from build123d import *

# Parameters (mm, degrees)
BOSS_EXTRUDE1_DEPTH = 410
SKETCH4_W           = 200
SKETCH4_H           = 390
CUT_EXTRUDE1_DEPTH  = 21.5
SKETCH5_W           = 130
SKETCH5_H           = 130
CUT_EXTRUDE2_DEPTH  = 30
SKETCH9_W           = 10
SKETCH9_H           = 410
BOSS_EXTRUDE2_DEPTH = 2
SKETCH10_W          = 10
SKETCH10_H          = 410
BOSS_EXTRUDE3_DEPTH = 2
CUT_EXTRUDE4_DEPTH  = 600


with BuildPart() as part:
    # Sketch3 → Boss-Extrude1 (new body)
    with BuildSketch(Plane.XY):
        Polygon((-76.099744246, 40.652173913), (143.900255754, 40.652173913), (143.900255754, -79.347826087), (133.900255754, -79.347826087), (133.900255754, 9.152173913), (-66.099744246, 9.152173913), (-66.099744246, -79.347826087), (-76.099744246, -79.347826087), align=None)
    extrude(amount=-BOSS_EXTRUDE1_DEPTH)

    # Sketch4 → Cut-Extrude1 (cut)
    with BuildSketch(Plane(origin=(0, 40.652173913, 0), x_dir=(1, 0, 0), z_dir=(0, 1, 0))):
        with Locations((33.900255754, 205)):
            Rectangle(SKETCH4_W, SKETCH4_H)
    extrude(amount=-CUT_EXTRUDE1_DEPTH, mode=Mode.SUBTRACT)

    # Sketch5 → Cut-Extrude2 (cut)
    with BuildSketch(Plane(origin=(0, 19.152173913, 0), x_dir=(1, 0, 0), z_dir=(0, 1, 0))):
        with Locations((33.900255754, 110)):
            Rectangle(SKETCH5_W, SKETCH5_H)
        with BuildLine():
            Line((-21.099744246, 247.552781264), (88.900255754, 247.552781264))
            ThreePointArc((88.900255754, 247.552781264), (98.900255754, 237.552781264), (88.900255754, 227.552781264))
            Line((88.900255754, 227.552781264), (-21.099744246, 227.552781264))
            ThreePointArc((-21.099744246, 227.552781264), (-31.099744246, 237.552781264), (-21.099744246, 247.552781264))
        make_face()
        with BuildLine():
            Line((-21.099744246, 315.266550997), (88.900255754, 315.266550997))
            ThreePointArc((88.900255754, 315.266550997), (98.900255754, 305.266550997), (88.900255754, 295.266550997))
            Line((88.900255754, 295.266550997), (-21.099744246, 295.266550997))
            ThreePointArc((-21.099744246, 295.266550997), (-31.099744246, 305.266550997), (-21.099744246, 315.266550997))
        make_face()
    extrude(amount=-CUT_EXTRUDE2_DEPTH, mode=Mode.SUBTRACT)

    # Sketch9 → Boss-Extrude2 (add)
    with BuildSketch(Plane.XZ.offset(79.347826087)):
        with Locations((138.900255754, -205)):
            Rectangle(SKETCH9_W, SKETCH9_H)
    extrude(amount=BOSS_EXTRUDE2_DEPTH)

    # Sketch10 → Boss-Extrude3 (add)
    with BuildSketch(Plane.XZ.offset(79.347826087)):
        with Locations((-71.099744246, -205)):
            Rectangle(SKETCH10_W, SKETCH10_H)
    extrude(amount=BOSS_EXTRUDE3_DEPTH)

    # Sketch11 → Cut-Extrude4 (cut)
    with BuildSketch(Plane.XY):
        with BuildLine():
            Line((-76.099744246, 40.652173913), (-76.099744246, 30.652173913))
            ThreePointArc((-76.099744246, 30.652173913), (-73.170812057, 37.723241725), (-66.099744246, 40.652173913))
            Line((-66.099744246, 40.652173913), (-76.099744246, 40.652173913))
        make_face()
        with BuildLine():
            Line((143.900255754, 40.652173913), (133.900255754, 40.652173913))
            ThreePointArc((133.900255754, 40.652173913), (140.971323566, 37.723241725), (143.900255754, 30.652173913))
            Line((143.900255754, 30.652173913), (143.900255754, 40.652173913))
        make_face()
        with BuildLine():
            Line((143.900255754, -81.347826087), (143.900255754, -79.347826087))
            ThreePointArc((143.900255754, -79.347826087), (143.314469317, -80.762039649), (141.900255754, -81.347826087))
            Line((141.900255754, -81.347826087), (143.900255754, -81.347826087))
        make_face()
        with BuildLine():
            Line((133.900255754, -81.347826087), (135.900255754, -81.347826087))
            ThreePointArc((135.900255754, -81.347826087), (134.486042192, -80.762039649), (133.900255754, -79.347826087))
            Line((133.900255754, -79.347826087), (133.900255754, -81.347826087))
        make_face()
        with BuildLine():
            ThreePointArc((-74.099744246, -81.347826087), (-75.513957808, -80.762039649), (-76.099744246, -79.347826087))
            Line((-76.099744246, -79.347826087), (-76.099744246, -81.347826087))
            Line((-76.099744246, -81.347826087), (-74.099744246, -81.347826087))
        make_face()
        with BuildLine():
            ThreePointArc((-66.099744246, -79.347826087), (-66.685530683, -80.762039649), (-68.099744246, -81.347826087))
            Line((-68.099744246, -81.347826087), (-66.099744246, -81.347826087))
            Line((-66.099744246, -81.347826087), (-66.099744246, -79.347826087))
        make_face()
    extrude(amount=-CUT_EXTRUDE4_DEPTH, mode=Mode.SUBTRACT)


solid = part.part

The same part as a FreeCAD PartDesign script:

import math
import FreeCAD as App
import Part
import Sketcher
from FreeCAD import Vector
Q = App.Units.Quantity


def add_polygon(sketch, points):
    """Adds a closed chain of lines whose ends are joined by coincident constraints."""
    first, n = sketch.GeometryCount, len(points)
    for a, b in zip(points, points[1:] + points[:1]):
        sketch.addGeometry(Part.LineSegment(App.Vector(*a, 0), App.Vector(*b, 0)), False)
    for i in range(n):
        sketch.addConstraint(Sketcher.Constraint("Coincident", first + i, 2, first + (i + 1) % n, 1))

doc = App.newDocument("Part")
body = doc.addObject("PartDesign::Body", "Body")

sketch1 = body.newObject("Sketcher::SketchObject", "Sketch")
sketch1.AttachmentSupport = (doc.getObject("XY_Plane"), [""])
sketch1.MapMode = "FlatFace"
add_polygon(sketch1, [(143.900256, 40.652174), (-76.099744, 40.652174), (-76.099744, -79.347826), (-66.099744, -79.347826), (-66.099744, 9.152174), (133.900256, 9.152174), (133.900256, -79.347826), (143.900256, -79.347826)])
sketch1.addConstraint([
    Sketcher.Constraint("Horizontal", 0),
    Sketcher.Constraint("Vertical", 1),
    Sketcher.Constraint("Horizontal", 2),
    Sketcher.Constraint("Vertical", 3),
    Sketcher.Constraint("Horizontal", 4),
    Sketcher.Constraint("Vertical", 5),
    Sketcher.Constraint("Horizontal", 6),
    Sketcher.Constraint("Vertical", 7),
    Sketcher.Constraint("Horizontal", 2, 2, 5, 2),
    Sketcher.Constraint("Equal", 2, 6),
    Sketcher.Constraint("DistanceX", 0, 2, 0, 1, Q("220 mm")),
    Sketcher.Constraint("DistanceX", 2, 1, 2, 2, Q("10 mm")),
    Sketcher.Constraint("DistanceY", 1, 2, 1, 1, Q("120 mm")),
    Sketcher.Constraint("DistanceY", 3, 1, 3, 2, Q("88.5 mm")),
    Sketcher.Constraint("DistanceX", 0, 2, -1, 1, Q("76.099744 mm")),
    Sketcher.Constraint("DistanceY", -1, 1, 0, 2, Q("40.652174 mm")),
])
pad1 = body.newObject("PartDesign::Pad", "Pad")
pad1.Profile = sketch1
pad1.Length = 410
pad1.Reversed = True

sketch2 = body.newObject("Sketcher::SketchObject", "Sketch001")
sketch2.AttachmentSupport = (doc.getObject("XZ_Plane"), [""])
sketch2.MapMode = "FlatFace"
sketch2.AttachmentOffset = App.Placement(Vector(0, 0, -40.652174), App.Rotation())
add_polygon(sketch2, [(-66.099744, -400), (-66.099744, -10), (133.900256, -10), (133.900256, -400)])
sketch2.addConstraint([
    Sketcher.Constraint("Vertical", 0),
    Sketcher.Constraint("Horizontal", 1),
    Sketcher.Constraint("Vertical", 2),
    Sketcher.Constraint("Horizontal", 3),
    Sketcher.Constraint("DistanceX", 1, 1, 1, 2, Q("200 mm")),
    Sketcher.Constraint("DistanceY", 0, 1, 0, 2, Q("390 mm")),
    Sketcher.Constraint("DistanceY", 0, 2, -1, 1, Q("10 mm")),
    Sketcher.Constraint("DistanceX", 0, 2, -1, 1, Q("66.099744 mm")),
])
pocket1 = body.newObject("PartDesign::Pocket", "Pocket")
pocket1.Profile = sketch2
pocket1.Length = 21.5
pocket1.Reversed = True

sketch3 = body.newObject("Sketcher::SketchObject", "Sketch002")
sketch3.AttachmentSupport = (doc.getObject("XZ_Plane"), [""])
sketch3.MapMode = "FlatFace"
sketch3.AttachmentOffset = App.Placement(Vector(0, 0, -19.152174), App.Rotation())
add_polygon(sketch3, [(-31.099744, -175), (-31.099744, -45), (98.900256, -45), (98.900256, -175)])
sketch3.addGeometry(Part.LineSegment(Vector(88.900256, -247.552781, 0), Vector(-21.099744, -247.552781, 0)), False)
sketch3.addGeometry(Part.ArcOfCircle(Part.Circle(Vector(-21.099744, -237.552781, 0), Vector(0, 0, 1), 10), math.radians(90), math.radians(270)), False)
sketch3.addGeometry(Part.LineSegment(Vector(-21.099744, -227.552781, 0), Vector(88.900256, -227.552781, 0)), False)
sketch3.addGeometry(Part.ArcOfCircle(Part.Circle(Vector(88.900256, -237.552781, 0), Vector(0, 0, 1), 10), math.radians(-90), math.radians(90)), False)
sketch3.addGeometry(Part.LineSegment(Vector(88.900256, -315.266551, 0), Vector(-21.099744, -315.266551, 0)), False)
sketch3.addGeometry(Part.ArcOfCircle(Part.Circle(Vector(-21.099744, -305.266551, 0), Vector(0, 0, 1), 10), math.radians(90), math.radians(270)), False)
sketch3.addGeometry(Part.LineSegment(Vector(-21.099744, -295.266551, 0), Vector(88.900256, -295.266551, 0)), False)
sketch3.addGeometry(Part.ArcOfCircle(Part.Circle(Vector(88.900256, -305.266551, 0), Vector(0, 0, 1), 10), math.radians(-90), math.radians(90)), False)
sketch3.addConstraint([
    Sketcher.Constraint("Tangent", 4, 2, 5, 2),
    Sketcher.Constraint("Tangent", 5, 1, 6, 1),
    Sketcher.Constraint("Tangent", 6, 2, 7, 2),
    Sketcher.Constraint("Tangent", 7, 1, 4, 1),
    Sketcher.Constraint("Tangent", 8, 2, 9, 2),
    Sketcher.Constraint("Tangent", 9, 1, 10, 1),
    Sketcher.Constraint("Tangent", 10, 2, 11, 2),
    Sketcher.Constraint("Tangent", 11, 1, 8, 1),
    Sketcher.Constraint("Vertical", 0),
    Sketcher.Constraint("Horizontal", 1),
    Sketcher.Constraint("Vertical", 2),
    Sketcher.Constraint("Horizontal", 3),
    Sketcher.Constraint("Horizontal", 4),
    Sketcher.Constraint("Horizontal", 6),
    Sketcher.Constraint("Horizontal", 8),
    Sketcher.Constraint("Horizontal", 10),
    Sketcher.Constraint("Equal", 7, 9),
    Sketcher.Constraint("Vertical", 5, 3, 9, 3),
    Sketcher.Constraint("Vertical", 7, 3, 11, 3),
    Sketcher.Constraint("Equal", 3, 0),
    Sketcher.Constraint("Radius", 5, Q("10 mm")),
    Sketcher.Constraint("DistanceX", 1, 1, 1, 2, Q("130 mm")),
    Sketcher.Constraint("DistanceX", 4, 2, 4, 1, Q("110 mm")),
    Sketcher.Constraint("DistanceY", 0, 2, -1, 1, Q("45 mm")),
    Sketcher.Constraint("DistanceX", 0, 2, 5, 3, Q("10 mm")),
    Sketcher.Constraint("DistanceY", 5, 3, -1, 1, Q("237.552781 mm")),
    Sketcher.Constraint("DistanceY", 9, 3, -1, 1, Q("305.266551 mm")),
    Sketcher.Constraint("DistanceX", 5, 3, -1, 1, Q("21.099744 mm")),
])
pocket2 = body.newObject("PartDesign::Pocket", "Pocket001")
pocket2.Profile = sketch3
pocket2.Length = 30
pocket2.Reversed = True

sketch4 = body.newObject("Sketcher::SketchObject", "Sketch003")
sketch4.AttachmentSupport = (doc.getObject("XZ_Plane"), [""])
sketch4.MapMode = "FlatFace"
sketch4.AttachmentOffset = App.Placement(Vector(0, 0, 79.347826), App.Rotation())
add_polygon(sketch4, [(133.900256, 0), (133.900256, -410), (143.900256, -410), (143.900256, 0)])
sketch4.addConstraint([
    Sketcher.Constraint("Vertical", 0),
    Sketcher.Constraint("Horizontal", 1),
    Sketcher.Constraint("Vertical", 2),
    Sketcher.Constraint("Horizontal", 3),
    Sketcher.Constraint("PointOnObject", 2, 2, -1),
    Sketcher.Constraint("DistanceX", 1, 1, 1, 2, Q("10 mm")),
    Sketcher.Constraint("DistanceY", 0, 2, 0, 1, Q("410 mm")),
    Sketcher.Constraint("DistanceX", -1, 1, 0, 2, Q("133.900256 mm")),
])
pad2 = body.newObject("PartDesign::Pad", "Pad001")
pad2.Profile = sketch4
pad2.Length = 2

sketch5 = body.newObject("Sketcher::SketchObject", "Sketch004")
sketch5.AttachmentSupport = (doc.getObject("XZ_Plane"), [""])
sketch5.MapMode = "FlatFace"
sketch5.AttachmentOffset = App.Placement(Vector(0, 0, 79.347826), App.Rotation())
add_polygon(sketch5, [(-76.099744, 0), (-76.099744, -410), (-66.099744, -410), (-66.099744, 0)])
sketch5.addConstraint([
    Sketcher.Constraint("Vertical", 0),
    Sketcher.Constraint("Horizontal", 1),
    Sketcher.Constraint("Vertical", 2),
    Sketcher.Constraint("Horizontal", 3),
    Sketcher.Constraint("PointOnObject", 2, 2, -1),
    Sketcher.Constraint("DistanceX", 1, 1, 1, 2, Q("10 mm")),
    Sketcher.Constraint("DistanceY", 0, 2, 0, 1, Q("410 mm")),
    Sketcher.Constraint("DistanceX", 0, 2, -1, 1, Q("76.099744 mm")),
])
pad3 = body.newObject("PartDesign::Pad", "Pad002")
pad3.Profile = sketch5
pad3.Length = 2

sketch6 = body.newObject("Sketcher::SketchObject", "Sketch005")
sketch6.AttachmentSupport = (doc.getObject("XY_Plane"), [""])
sketch6.MapMode = "FlatFace"
sketch6.addGeometry([
    Part.LineSegment(Vector(-76.099744, 40.652174, 0), Vector(-76.099744, 30.652174, 0)),
    Part.ArcOfCircle(Part.Circle(Vector(-66.099744, 30.652174, 0), Vector(0, 0, 1), 10), math.radians(90), math.radians(180)),
    Part.LineSegment(Vector(-66.099744, 40.652174, 0), Vector(-76.099744, 40.652174, 0)),
    Part.LineSegment(Vector(143.900256, 40.652174, 0), Vector(133.900256, 40.652174, 0)),
    Part.ArcOfCircle(Part.Circle(Vector(133.900256, 30.652174, 0), Vector(0, 0, 1), 10), math.radians(0), math.radians(90)),
    Part.LineSegment(Vector(143.900256, 30.652174, 0), Vector(143.900256, 40.652174, 0)),
    Part.LineSegment(Vector(143.900256, -81.347826, 0), Vector(143.900256, -79.347826, 0)),
    Part.ArcOfCircle(Part.Circle(Vector(141.900256, -79.347826, 0), Vector(0, 0, 1), 2), math.radians(-90), math.radians(0)),
    Part.LineSegment(Vector(141.900256, -81.347826, 0), Vector(143.900256, -81.347826, 0)),
    Part.LineSegment(Vector(133.900256, -81.347826, 0), Vector(135.900256, -81.347826, 0)),
    Part.ArcOfCircle(Part.Circle(Vector(135.900256, -79.347826, 0), Vector(0, 0, 1), 2), math.radians(-180), math.radians(-90)),
    Part.LineSegment(Vector(133.900256, -79.347826, 0), Vector(133.900256, -81.347826, 0)),
    Part.ArcOfCircle(Part.Circle(Vector(-74.099744, -79.347826, 0), Vector(0, 0, 1), 2), math.radians(-180), math.radians(-90)),
    Part.LineSegment(Vector(-76.099744, -79.347826, 0), Vector(-76.099744, -81.347826, 0)),
    Part.LineSegment(Vector(-76.099744, -81.347826, 0), Vector(-74.099744, -81.347826, 0)),
    Part.ArcOfCircle(Part.Circle(Vector(-68.099744, -79.347826, 0), Vector(0, 0, 1), 2), math.radians(-90), math.radians(0)),
    Part.LineSegment(Vector(-68.099744, -81.347826, 0), Vector(-66.099744, -81.347826, 0)),
    Part.LineSegment(Vector(-66.099744, -81.347826, 0), Vector(-66.099744, -79.347826, 0)),
], False)
sketch6.addConstraint([
    Sketcher.Constraint("Tangent", 0, 2, 1, 2),
    Sketcher.Constraint("Tangent", 1, 1, 2, 1),
    Sketcher.Constraint("Coincident", 2, 2, 0, 1),
    Sketcher.Constraint("Tangent", 3, 2, 4, 2),
    Sketcher.Constraint("Tangent", 4, 1, 5, 1),
    Sketcher.Constraint("Coincident", 5, 2, 3, 1),
    Sketcher.Constraint("Tangent", 6, 2, 7, 2),
    Sketcher.Constraint("Tangent", 7, 1, 8, 1),
    Sketcher.Constraint("Coincident", 8, 2, 6, 1),
    Sketcher.Constraint("Tangent", 9, 2, 10, 2),
    Sketcher.Constraint("Tangent", 10, 1, 11, 1),
    Sketcher.Constraint("Coincident", 11, 2, 9, 1),
    Sketcher.Constraint("Tangent", 12, 1, 13, 1),
    Sketcher.Constraint("Coincident", 13, 2, 14, 1),
    Sketcher.Constraint("Tangent", 14, 2, 12, 2),
    Sketcher.Constraint("Tangent", 15, 1, 16, 1),
    Sketcher.Constraint("Coincident", 16, 2, 17, 1),
    Sketcher.Constraint("Tangent", 17, 2, 15, 2),
    Sketcher.Constraint("Vertical", 0),
    Sketcher.Constraint("Horizontal", 2),
    Sketcher.Constraint("Horizontal", 3),
    Sketcher.Constraint("Vertical", 5),
    Sketcher.Constraint("Vertical", 6),
    Sketcher.Constraint("Horizontal", 8),
    Sketcher.Constraint("Horizontal", 9),
    Sketcher.Constraint("Vertical", 11),
    Sketcher.Constraint("Vertical", 13),
    Sketcher.Constraint("Horizontal", 14),
    Sketcher.Constraint("Horizontal", 16),
    Sketcher.Constraint("Vertical", 17),
    Sketcher.Constraint("Equal", 1, 4),
    Sketcher.Constraint("Equal", 7, 10),
    Sketcher.Constraint("Equal", 10, 12),
    Sketcher.Constraint("Equal", 12, 15),
    Sketcher.Constraint("Horizontal", 1, 3, 4, 3),
    Sketcher.Constraint("Horizontal", 7, 3, 10, 3),
    Sketcher.Constraint("Horizontal", 10, 3, 12, 3),
    Sketcher.Constraint("Horizontal", 12, 3, 15, 3),
    Sketcher.Constraint("Vertical", 5, 2, 6, 2),
    Sketcher.Constraint("Vertical", 3, 2, 10, 1),
    Sketcher.Constraint("Vertical", 2, 2, 12, 1),
    Sketcher.Constraint("Vertical", 1, 1, 16, 2),
    Sketcher.Constraint("Radius", 1, Q("10 mm")),
    Sketcher.Constraint("Radius", 7, Q("2 mm")),
    Sketcher.Constraint("DistanceX", 1, 3, 4, 3, Q("200 mm")),
    Sketcher.Constraint("DistanceY", 7, 3, 4, 3, Q("110 mm")),
    Sketcher.Constraint("DistanceX", 1, 3, -1, 1, Q("66.099744 mm")),
    Sketcher.Constraint("DistanceY", -1, 1, 1, 3, Q("30.652174 mm")),
])
pocket3 = body.newObject("PartDesign::Pocket", "Pocket002")
pocket3.Profile = sketch6
pocket3.Length = 600

doc.recompute()
